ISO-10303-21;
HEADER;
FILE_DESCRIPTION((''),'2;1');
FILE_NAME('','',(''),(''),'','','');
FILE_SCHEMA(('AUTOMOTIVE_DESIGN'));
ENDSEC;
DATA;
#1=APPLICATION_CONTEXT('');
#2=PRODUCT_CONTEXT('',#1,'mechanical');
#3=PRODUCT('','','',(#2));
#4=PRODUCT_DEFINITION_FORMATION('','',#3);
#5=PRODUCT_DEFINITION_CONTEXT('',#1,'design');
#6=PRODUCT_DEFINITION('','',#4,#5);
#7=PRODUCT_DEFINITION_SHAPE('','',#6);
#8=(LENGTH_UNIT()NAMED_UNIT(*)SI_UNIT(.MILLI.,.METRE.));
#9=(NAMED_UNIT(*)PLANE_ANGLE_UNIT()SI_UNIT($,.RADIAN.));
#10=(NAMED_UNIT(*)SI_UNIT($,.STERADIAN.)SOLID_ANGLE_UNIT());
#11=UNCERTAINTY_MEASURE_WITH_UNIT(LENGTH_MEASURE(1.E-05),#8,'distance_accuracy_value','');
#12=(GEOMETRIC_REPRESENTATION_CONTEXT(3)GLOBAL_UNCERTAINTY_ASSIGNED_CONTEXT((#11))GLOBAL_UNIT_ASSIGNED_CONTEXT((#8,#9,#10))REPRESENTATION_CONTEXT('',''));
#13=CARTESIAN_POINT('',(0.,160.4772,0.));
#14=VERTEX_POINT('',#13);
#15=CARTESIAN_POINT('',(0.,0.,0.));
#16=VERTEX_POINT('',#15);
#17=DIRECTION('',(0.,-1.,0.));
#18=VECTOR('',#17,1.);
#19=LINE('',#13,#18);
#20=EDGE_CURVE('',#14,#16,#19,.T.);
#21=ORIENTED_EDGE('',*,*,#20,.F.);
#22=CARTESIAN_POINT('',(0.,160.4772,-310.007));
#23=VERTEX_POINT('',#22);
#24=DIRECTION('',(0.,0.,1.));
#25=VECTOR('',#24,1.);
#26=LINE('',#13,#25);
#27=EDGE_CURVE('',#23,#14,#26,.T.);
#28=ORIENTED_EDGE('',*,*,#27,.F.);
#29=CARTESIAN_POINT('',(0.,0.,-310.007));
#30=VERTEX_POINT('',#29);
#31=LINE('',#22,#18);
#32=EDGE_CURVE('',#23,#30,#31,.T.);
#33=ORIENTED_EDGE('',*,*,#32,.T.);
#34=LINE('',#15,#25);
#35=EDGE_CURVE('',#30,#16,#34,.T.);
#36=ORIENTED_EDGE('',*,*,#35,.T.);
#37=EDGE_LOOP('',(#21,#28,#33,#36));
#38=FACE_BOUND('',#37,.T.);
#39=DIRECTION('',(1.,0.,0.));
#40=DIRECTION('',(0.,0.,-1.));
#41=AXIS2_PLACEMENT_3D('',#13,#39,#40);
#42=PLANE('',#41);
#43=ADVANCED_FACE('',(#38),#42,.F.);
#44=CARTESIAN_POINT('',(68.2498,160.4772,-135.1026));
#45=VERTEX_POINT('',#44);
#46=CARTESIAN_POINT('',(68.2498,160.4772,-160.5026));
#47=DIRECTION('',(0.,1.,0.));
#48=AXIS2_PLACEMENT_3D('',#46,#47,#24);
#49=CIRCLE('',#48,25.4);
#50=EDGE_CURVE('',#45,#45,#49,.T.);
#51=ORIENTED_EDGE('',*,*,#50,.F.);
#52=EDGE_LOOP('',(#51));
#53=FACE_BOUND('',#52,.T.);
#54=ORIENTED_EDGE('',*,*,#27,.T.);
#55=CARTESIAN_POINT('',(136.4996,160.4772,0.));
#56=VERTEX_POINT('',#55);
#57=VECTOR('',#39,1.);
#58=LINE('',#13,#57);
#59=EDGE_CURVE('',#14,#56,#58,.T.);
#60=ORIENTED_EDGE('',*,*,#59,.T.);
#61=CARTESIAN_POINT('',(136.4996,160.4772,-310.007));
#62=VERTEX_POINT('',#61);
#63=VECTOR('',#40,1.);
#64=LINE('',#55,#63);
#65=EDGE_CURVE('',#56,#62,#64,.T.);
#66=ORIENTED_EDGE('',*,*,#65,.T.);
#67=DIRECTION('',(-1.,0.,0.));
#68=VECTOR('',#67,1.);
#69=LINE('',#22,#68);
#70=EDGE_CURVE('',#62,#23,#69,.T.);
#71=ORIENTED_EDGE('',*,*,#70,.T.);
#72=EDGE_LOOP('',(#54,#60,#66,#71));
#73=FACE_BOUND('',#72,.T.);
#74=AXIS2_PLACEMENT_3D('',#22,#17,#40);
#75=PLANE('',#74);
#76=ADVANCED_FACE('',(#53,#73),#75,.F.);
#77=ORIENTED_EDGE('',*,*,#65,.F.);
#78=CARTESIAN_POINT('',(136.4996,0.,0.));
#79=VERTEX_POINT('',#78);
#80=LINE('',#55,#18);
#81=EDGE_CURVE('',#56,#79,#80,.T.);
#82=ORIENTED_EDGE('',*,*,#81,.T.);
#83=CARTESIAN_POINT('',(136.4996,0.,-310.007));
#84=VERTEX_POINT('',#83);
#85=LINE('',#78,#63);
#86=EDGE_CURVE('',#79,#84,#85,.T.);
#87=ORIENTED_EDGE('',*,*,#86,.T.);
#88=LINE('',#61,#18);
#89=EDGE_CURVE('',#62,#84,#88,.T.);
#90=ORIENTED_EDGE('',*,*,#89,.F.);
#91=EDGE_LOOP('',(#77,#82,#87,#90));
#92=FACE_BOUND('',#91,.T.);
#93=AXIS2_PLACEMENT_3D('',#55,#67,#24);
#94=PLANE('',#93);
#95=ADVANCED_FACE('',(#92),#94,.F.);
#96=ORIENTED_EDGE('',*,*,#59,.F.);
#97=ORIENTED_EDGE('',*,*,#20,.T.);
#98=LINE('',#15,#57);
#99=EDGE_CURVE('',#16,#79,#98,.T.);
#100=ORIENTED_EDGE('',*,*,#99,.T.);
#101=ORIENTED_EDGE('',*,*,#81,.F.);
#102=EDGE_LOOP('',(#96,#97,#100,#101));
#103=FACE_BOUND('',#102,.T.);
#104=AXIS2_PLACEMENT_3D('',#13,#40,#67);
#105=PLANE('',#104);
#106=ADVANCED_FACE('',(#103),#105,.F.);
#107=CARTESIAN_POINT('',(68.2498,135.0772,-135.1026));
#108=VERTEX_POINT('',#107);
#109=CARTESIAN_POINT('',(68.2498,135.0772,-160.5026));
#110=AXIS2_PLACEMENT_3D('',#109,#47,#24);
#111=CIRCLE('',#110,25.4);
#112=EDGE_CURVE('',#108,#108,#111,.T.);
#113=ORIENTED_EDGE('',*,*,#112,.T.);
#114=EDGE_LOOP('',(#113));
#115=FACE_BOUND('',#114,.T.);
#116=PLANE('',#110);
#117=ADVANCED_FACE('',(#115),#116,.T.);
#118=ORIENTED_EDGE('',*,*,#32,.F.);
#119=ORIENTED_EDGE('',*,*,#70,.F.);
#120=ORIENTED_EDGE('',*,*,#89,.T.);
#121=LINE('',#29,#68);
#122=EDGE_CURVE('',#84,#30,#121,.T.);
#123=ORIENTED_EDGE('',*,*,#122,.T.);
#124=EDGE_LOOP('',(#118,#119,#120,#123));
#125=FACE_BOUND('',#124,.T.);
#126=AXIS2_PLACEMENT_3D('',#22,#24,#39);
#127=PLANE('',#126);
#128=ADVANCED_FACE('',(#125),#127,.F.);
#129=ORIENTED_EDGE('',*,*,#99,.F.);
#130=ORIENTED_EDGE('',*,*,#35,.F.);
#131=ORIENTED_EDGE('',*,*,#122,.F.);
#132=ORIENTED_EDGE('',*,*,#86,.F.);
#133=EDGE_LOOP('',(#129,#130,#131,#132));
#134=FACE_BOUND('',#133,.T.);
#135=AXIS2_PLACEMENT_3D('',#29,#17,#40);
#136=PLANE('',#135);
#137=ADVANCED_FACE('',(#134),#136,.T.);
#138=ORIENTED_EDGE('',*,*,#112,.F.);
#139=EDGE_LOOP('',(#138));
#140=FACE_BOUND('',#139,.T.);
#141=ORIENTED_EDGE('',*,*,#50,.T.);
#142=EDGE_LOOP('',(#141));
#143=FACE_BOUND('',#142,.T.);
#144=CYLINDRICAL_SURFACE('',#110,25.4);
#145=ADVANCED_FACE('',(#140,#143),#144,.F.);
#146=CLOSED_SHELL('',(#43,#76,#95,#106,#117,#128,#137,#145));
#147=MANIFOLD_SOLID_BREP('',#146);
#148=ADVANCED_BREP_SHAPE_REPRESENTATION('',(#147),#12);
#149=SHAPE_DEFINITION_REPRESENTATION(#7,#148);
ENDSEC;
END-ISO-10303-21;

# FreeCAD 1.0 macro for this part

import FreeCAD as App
import Part
import Sketcher

V = App.Vector
Q = App.Units.Quantity

doc = App.newDocument("Part")
body = doc.addObject("PartDesign::Body", "Body")

# Sketch on XZ plane
sketch1 = body.newObject("Sketcher::SketchObject", "Sketch")
sketch1.AttachmentSupport = (doc.getObject("XZ_Plane"), [""])
sketch1.MapMode = "FlatFace"
sketch1.addGeometry(Part.LineSegment(V(0, -310, 0), V(0, 0, 0)), False)
sketch1.addGeometry(Part.LineSegment(V(0, 0, 0), V(136, 0, 0)), False)
sketch1.addGeometry(Part.LineSegment(V(136, 0, 0), V(136, -310, 0)), False)
sketch1.addGeometry(Part.LineSegment(V(136, -310, 0), V(0, -310, 0)), False)
sketch1.addConstraint(Sketcher.Constraint("Coincident", 0, 2, 1, 1))
sketch1.addConstraint(Sketcher.Constraint("Coincident", 1, 2, 2, 1))
sketch1.addConstraint(Sketcher.Constraint("Coincident", 2, 2, 3, 1))
sketch1.addConstraint(Sketcher.Constraint("Coincident", 3, 2, 0, 1))
sketch1.addConstraint(Sketcher.Constraint("Vertical", 0))
sketch1.addConstraint(Sketcher.Constraint("Horizontal", 1))
sketch1.addConstraint(Sketcher.Constraint("Vertical", 2))
sketch1.addConstraint(Sketcher.Constraint("Horizontal", 3))
sketch1.addConstraint(Sketcher.Constraint("Coincident", 0, 2, -1, 1))
sketch1.addConstraint(Sketcher.Constraint("DistanceX", 1, 1, 1, 2, Q("5.374 in")))
sketch1.addConstraint(Sketcher.Constraint("DistanceY", 0, 1, 0, 2, Q("12.205 in")))
pad1 = body.newObject("PartDesign::Pad", "Pad")
pad1.Profile = sketch1
pad1.Length = Q("6.318 in")
pad1.Reversed = True

# Sketch on XZ plane
sketch2 = body.newObject("Sketcher::SketchObject", "Sketch001")
sketch2.AttachmentSupport = (doc.getObject("XZ_Plane"), [""])
sketch2.MapMode = "FlatFace"
sketch2.AttachmentOffset = App.Placement(V(0, 0, -6.318 * 25.4), App.Rotation())
sketch2.addGeometry(Part.Circle(V(68, -161, 0), V(0, 0, 1), 25), False)
sketch2.addConstraint(Sketcher.Constraint("Diameter", 0, Q("2 in")))
sketch2.addConstraint(Sketcher.Constraint("DistanceX", -1, 1, 0, 3, Q("2.687 in")))
sketch2.addConstraint(Sketcher.Constraint("DistanceY", 0, 3, -1, 1, Q("6.319 in")))
pocket1 = body.newObject("PartDesign::Pocket", "Pocket")
pocket1.Profile = sketch2
pocket1.Length = Q("1 in")
pocket1.Reversed = True

doc.recompute()
